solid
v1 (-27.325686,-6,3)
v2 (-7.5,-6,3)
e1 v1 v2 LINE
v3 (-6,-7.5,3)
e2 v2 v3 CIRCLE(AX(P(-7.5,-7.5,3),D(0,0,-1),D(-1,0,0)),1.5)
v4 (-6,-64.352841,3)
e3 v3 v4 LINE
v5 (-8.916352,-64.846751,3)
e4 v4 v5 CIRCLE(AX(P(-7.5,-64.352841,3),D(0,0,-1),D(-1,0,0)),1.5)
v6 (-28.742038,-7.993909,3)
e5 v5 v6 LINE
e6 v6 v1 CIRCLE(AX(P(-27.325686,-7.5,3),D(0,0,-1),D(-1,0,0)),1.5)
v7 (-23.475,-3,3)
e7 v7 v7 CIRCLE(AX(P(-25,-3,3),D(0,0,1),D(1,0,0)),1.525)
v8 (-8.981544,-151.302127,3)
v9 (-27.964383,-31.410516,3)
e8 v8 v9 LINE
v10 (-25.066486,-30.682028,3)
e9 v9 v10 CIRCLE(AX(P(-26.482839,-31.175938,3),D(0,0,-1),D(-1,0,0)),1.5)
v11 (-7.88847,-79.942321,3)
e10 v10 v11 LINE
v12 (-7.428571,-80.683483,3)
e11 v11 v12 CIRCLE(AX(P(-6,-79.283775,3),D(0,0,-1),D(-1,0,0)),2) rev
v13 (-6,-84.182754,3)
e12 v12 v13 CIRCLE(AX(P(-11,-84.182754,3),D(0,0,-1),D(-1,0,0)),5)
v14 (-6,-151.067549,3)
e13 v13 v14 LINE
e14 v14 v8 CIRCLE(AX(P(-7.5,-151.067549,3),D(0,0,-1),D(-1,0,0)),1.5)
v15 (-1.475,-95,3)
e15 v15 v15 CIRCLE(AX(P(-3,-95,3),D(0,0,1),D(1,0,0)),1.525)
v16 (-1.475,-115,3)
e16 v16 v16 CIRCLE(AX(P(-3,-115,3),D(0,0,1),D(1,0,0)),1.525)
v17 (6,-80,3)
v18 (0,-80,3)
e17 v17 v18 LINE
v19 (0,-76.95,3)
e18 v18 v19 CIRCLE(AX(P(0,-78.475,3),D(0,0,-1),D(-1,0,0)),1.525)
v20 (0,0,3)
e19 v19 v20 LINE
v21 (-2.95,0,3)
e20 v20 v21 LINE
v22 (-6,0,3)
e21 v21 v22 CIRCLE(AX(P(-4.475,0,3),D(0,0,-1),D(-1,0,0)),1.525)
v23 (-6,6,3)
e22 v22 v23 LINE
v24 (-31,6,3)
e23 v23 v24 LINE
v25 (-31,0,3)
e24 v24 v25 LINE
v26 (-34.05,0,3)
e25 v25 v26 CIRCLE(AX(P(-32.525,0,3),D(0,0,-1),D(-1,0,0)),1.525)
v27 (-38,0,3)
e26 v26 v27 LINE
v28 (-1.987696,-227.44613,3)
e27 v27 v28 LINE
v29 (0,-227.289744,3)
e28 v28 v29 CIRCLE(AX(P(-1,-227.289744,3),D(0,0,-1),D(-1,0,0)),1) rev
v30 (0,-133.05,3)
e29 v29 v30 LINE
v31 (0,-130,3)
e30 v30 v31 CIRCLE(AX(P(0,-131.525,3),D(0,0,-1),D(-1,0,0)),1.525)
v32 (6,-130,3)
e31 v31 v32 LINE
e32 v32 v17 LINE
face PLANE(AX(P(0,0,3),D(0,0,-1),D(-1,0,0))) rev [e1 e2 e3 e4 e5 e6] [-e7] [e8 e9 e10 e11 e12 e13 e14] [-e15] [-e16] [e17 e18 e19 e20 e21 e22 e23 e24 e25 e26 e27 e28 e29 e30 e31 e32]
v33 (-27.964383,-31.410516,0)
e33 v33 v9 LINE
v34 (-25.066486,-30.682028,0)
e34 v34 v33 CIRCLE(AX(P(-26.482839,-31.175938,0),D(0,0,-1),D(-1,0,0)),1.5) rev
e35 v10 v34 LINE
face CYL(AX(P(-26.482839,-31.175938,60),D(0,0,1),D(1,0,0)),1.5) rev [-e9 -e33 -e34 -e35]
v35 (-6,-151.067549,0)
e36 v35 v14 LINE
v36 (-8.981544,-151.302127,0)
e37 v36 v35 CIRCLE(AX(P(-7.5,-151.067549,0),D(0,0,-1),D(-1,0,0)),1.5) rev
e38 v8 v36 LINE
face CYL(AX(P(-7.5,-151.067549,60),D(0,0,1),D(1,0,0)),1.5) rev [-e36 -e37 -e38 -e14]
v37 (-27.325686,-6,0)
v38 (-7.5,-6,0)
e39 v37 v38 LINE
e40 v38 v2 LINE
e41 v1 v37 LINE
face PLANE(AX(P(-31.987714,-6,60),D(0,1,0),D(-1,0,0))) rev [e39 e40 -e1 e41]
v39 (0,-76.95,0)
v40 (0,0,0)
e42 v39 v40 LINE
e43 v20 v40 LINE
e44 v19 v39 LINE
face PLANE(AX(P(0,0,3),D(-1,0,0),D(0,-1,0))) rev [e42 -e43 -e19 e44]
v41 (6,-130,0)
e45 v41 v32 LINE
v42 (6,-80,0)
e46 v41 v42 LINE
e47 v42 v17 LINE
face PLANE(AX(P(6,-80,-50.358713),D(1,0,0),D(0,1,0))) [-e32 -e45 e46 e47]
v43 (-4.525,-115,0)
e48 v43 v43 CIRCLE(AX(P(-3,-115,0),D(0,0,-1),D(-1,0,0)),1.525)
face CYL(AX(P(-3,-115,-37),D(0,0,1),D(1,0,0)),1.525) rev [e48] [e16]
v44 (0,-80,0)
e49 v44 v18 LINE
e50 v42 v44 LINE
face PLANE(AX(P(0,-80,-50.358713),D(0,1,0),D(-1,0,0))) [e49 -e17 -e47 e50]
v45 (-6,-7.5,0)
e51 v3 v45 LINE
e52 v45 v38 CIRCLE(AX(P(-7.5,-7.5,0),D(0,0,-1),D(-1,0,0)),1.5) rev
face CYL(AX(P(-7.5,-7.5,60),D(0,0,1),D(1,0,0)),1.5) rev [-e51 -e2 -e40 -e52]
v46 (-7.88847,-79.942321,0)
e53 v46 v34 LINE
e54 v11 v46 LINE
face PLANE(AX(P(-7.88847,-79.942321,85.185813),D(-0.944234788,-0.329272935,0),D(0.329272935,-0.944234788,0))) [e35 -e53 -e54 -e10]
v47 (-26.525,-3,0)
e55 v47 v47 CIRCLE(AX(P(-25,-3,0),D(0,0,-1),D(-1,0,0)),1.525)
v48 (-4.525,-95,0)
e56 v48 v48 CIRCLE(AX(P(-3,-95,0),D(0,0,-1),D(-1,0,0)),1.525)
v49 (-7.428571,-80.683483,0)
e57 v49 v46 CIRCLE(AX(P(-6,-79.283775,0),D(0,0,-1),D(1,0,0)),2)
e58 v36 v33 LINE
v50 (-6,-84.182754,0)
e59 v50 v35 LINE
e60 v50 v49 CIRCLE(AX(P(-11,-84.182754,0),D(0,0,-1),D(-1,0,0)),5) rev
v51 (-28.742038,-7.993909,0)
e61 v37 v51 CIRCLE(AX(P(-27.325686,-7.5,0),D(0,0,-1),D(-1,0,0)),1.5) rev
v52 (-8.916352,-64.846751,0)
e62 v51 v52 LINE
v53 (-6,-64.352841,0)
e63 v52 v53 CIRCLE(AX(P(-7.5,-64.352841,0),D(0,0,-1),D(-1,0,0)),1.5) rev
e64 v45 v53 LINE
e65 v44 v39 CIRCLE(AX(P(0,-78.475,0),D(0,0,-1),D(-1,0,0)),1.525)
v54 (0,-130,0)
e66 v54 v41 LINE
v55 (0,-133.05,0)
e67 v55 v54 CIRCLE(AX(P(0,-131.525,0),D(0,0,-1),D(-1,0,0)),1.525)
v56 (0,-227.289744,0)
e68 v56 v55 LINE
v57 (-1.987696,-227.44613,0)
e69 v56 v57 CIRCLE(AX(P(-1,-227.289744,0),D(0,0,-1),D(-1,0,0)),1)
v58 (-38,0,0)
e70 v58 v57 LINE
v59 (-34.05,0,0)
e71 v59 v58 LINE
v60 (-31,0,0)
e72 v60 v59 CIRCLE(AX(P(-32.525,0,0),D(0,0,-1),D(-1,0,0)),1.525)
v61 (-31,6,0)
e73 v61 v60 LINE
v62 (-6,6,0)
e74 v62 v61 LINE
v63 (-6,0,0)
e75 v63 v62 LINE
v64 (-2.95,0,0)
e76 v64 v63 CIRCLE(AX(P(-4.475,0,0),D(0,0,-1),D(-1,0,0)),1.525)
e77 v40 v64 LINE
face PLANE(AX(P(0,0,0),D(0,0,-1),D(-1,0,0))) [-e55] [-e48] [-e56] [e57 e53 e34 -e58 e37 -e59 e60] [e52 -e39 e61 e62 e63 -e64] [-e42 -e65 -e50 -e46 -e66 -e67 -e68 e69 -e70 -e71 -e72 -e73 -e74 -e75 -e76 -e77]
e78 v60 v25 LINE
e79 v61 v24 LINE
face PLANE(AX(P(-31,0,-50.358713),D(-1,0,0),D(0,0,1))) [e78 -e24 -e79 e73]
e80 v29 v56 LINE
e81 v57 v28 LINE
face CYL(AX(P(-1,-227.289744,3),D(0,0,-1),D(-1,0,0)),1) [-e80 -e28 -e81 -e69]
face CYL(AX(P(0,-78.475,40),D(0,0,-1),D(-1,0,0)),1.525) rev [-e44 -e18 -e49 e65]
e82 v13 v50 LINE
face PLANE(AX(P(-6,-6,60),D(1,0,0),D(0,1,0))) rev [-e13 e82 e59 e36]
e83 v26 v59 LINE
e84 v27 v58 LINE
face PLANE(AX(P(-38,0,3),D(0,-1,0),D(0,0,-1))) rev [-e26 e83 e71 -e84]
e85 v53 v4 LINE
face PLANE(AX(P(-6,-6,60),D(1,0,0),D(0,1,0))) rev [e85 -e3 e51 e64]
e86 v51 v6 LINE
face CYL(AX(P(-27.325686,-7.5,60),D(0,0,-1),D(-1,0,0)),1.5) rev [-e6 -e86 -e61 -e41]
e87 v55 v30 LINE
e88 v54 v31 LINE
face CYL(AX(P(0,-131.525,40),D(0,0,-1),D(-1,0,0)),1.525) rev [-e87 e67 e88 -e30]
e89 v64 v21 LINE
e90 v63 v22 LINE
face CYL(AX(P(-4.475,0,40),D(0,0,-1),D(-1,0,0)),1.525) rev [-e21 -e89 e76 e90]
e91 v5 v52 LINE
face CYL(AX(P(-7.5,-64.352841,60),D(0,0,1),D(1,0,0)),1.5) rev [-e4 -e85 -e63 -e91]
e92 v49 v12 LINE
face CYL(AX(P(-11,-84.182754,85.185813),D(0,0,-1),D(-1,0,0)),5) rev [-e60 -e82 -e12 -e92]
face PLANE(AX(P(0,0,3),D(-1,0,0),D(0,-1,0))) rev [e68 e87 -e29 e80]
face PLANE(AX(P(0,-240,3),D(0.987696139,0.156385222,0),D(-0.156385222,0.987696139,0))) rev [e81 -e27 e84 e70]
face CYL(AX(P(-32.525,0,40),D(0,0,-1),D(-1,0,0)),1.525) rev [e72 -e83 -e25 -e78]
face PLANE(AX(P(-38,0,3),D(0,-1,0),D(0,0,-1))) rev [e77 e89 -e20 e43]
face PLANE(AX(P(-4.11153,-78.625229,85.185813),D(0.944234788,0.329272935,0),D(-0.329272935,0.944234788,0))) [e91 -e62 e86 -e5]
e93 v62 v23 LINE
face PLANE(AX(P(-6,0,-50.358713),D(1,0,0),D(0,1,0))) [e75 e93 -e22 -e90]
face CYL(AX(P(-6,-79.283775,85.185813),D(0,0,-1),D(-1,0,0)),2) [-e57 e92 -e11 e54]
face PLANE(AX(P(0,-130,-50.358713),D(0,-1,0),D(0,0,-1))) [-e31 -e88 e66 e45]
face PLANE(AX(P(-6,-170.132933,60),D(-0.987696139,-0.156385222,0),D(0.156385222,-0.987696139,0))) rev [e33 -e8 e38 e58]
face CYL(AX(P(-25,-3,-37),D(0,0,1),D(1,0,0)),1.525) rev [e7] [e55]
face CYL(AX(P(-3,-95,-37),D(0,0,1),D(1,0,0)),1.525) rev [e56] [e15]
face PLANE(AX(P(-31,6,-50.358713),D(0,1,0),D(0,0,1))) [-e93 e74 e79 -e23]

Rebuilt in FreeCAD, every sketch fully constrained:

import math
import FreeCAD as App
import Part
import Sketcher

V = App.Vector
Q = App.Units.Quantity


def edges_at(feature, points):
    """Names of the edges that pass closest to the given points."""
    edges = feature.Shape.Edges
    near = lambda p: min(range(len(edges)), key=lambda i: edges[i].distToShape(Part.Vertex(*p))[0])
    return sorted({f"Edge{near(p) + 1}" for p in points})


def add_polygon(sketch, points):
    """Adds a closed chain of lines whose ends are joined by coincident constraints."""
    first, n = sketch.GeometryCount, len(points)
    for a, b in zip(points, points[1:] + points[:1]):
        sketch.addGeometry(Part.LineSegment(App.Vector(*a, 0), App.Vector(*b, 0)), False)
    for i in range(n):
        sketch.addConstraint(Sketcher.Constraint("Coincident", first + i, 2, first + (i + 1) % n, 1))

doc = App.newDocument("Part")
params = doc.addObject("Spreadsheet::Sheet", "Params")
for row, (alias, value) in enumerate([
    ("sketch1_width", "38 mm"),
    ("sketch1_height", "240 mm"),
    ("pad1_length", "3 mm"),
    ("sketch2_diameter", "3.05 mm"),
    ("pocket1_length", "40 mm"),
    ("sketch3_width", "25 mm"),
    ("sketch3_width2", "6 mm"),
    ("sketch3_height", "50 mm"),
    ("pad2_length", "3 mm"),
    ("sketch4_diameter", "3.05 mm"),
    ("pocket2_length", "40 mm"),
    ("pocket3_length", "60 mm"),
    ("fillet_radius", "1 mm"),
    ("fillet2_radius", "1.5 mm"),
    ("sketch6_radius", "2 mm"),
    ("sketch6_radius2", "2 mm"),
    ("pad3_length", "3 mm"),
    ("fillet3_radius", "5 mm"),
    ("fillet4_radius", "1.5 mm"),
], start=1):
    params.set(f"A{row}", alias)
    params.set(f"B{row}", "=" + value)
    params.setAlias(f"B{row}", alias)

body = doc.addObject("PartDesign::Body", "Body")

# Sketch on XY plane
sketch1 = body.newObject("Sketcher::SketchObject", "Sketch")
sketch1.AttachmentSupport = (doc.getObject("XY_Plane"), [""])
sketch1.MapMode = "FlatFace"
add_polygon(sketch1, [(0, 0), (-38, 0), (0, -240)])  # lines 0-2
sketch1.addConstraint([
    Sketcher.Constraint("Horizontal", 0),
    Sketcher.Constraint("Vertical", 2),
    Sketcher.Constraint("Coincident", 2, 2, -1, 1),
    Sketcher.Constraint("DistanceX", 0, 2, 0, 1, Q("38 mm")),
    Sketcher.Constraint("DistanceY", 2, 1, 2, 2, Q("240 mm")),
])
sketch1.setExpression("Constraints[6]", "Params.sketch1_width")
sketch1.setExpression("Constraints[7]", "Params.sketch1_height")
pad1 = body.newObject("PartDesign::Pad", "Pad")
pad1.Profile = sketch1
pad1.setExpression("Length", "Params.pad1_length")

# Sketch on XY plane
sketch2 = body.newObject("Sketcher::SketchObject", "Sketch001")
sketch2.AttachmentSupport = (doc.getObject("XY_Plane"), [""])
sketch2.MapMode = "FlatFace"
sketch2.AttachmentOffset = App.Placement(V(0, 0, 3), App.Rotation())
sketch2.addGeometry([
    Part.Circle(V(-3, -115, 0), V(0, 0, 1), 1.5),
    Part.Circle(V(-3, -95, 0), V(0, 0, 1), 1.5),
    Part.Circle(V(-25, -3, 0), V(0, 0, 1), 1.5),
], False)
sketch2.addConstraint([
    Sketcher.Constraint("Equal", 0, 1),
    Sketcher.Constraint("Equal", 1, 2),
    Sketcher.Constraint("Vertical", 0, 3, 1, 3),
    Sketcher.Constraint("Diameter", 0, Q("3.05 mm")),
    Sketcher.Constraint("DistanceX", 0, 3, -1, 1, Q("3 mm")),
    Sketcher.Constraint("DistanceY", 0, 3, -1, 1, Q("115 mm")),
    Sketcher.Constraint("DistanceY", 1, 3, -1, 1, Q("95 mm")),
    Sketcher.Constraint("DistanceX", 2, 3, -1, 1, Q("25 mm")),
    Sketcher.Constraint("DistanceY", 2, 3, -1, 1, Q("3 mm")),
])
sketch2.setExpression("Constraints[3]", "Params.sketch2_diameter")
pocket1 = body.newObject("PartDesign::Pocket", "Pocket")
pocket1.Profile = sketch2
pocket1.setExpression("Length", "Params.pocket1_length")

# Sketch on XY plane
sketch3 = body.newObject("Sketcher::SketchObject", "Sketch002")
sketch3.AttachmentSupport = (doc.getObject("XY_Plane"), [""])
sketch3.MapMode = "FlatFace"
sketch3.AttachmentOffset = App.Placement(V(0, 0, 3), App.Rotation())
add_polygon(sketch3, [(-31, 6), (-31, 0), (-6, 0), (-6, 6)])  # lines 0-3
add_polygon(sketch3, [(0, -80), (0, -130), (6, -130), (6, -80)])  # lines 4-7
sketch3.addConstraint([
    Sketcher.Constraint("Vertical", 0),
    Sketcher.Constraint("Horizontal", 1),
    Sketcher.Constraint("Vertical", 2),
    Sketcher.Constraint("Horizontal", 3),
    Sketcher.Constraint("Vertical", 4),
    Sketcher.Constraint("Horizontal", 5),
    Sketcher.Constraint("Vertical", 6),
    Sketcher.Constraint("Horizontal", 7),
    Sketcher.Constraint("PointOnObject", 0, 2, -1),
    Sketcher.Constraint("PointOnObject", 4, 2, -2),
    Sketcher.Constraint("Equal", 7, 0),
    Sketcher.Constraint("DistanceX", 1, 1, 1, 2, Q("25 mm")),
    Sketcher.Constraint("DistanceX", 5, 1, 5, 2, Q("6 mm")),
    Sketcher.Constraint("DistanceY", 4, 2, 4, 1, Q("50 mm")),
    Sketcher.Constraint("DistanceX", 0, 2, -1, 1, Q("31 mm")),
    Sketcher.Constraint("DistanceY", 4, 2, -1, 1, Q("130 mm")),
])
sketch3.setExpression("Constraints[19]", "Params.sketch3_width")
sketch3.setExpression("Constraints[20]", "Params.sketch3_width2")
sketch3.setExpression("Constraints[21]", "Params.sketch3_height")
pad2 = body.newObject("PartDesign::Pad", "Pad001")
pad2.Profile = sketch3
pad2.setExpression("Length", "Params.pad2_length")
pad2.Reversed = True

# Sketch on XY plane
sketch4 = body.newObject("Sketcher::SketchObject", "Sketch003")
sketch4.AttachmentSupport = (doc.getObject("XY_Plane"), [""])
sketch4.MapMode = "FlatFace"
sketch4.addGeometry([
    Part.Circle(V(0, -78.5, 0), V(0, 0, 1), 1.5),
    Part.Circle(V(0, -131.5, 0), V(0, 0, 1), 1.5),
    Part.Circle(V(-4.5, 0, 0), V(0, 0, 1), 1.5),
    Part.Circle(V(-32.5, 0, 0), V(0, 0, 1), 1.5),
], False)
sketch4.addConstraint([
    Sketcher.Constraint("Equal", 0, 1),
    Sketcher.Constraint("Equal", 1, 2),
    Sketcher.Constraint("Equal", 2, 3),
    Sketcher.Constraint("PointOnObject", 0, 3, -2),
    Sketcher.Constraint("PointOnObject", 1, 3, -2),
    Sketcher.Constraint("PointOnObject", 2, 3, -1),
    Sketcher.Constraint("PointOnObject", 3, 3, -1),
    Sketcher.Constraint("Diameter", 0, Q("3.05 mm")),
    Sketcher.Constraint("DistanceY", 1, 3, 0, 3, Q("53.05 mm")),
    Sketcher.Constraint("DistanceX", 3, 3, 2, 3, Q("28.05 mm")),
    Sketcher.Constraint("DistanceY", 0, 3, -1, 1, Q("78.475 mm")),
    Sketcher.Constraint("DistanceX", 2, 3, -1, 1, Q("4.475 mm")),
])
sketch4.setExpression("Constraints[7]", "Params.sketch4_diameter")
pocket2 = body.newObject("PartDesign::Pocket", "Pocket001")
pocket2.Profile = sketch4
pocket2.setExpression("Length", "Params.pocket2_length")
pocket2.Reversed = True

# Sketch on XY plane
sketch5 = body.newObject("Sketcher::SketchObject", "Sketch004")
sketch5.AttachmentSupport = (doc.getObject("XY_Plane"), [""])
sketch5.MapMode = "FlatFace"
add_polygon(sketch5, [(-6, -6), (-6, -170), (-32, -6)])  # lines 0-2
sketch5.addConstraint([
    Sketcher.Constraint("Vertical", 0),
    Sketcher.Constraint("Horizontal", 2),
    Sketcher.Constraint("DistanceX", 0, 2, -1, 1, Q("6 mm")),
    Sketcher.Constraint("DistanceY", 1, 2, -1, 1, Q("6 mm")),
    Sketcher.Constraint("Distance", 1, Q("166.177558 mm")),
    Sketcher.Constraint("DistanceX", 2, 1, 2, 2, Q("25.987714 mm")),
])
pocket3 = body.newObject("PartDesign::Pocket", "Pocket002")
pocket3.Profile = sketch5
pocket3.setExpression("Length", "Params.pocket3_length")
pocket3.Reversed = True
doc.recompute()

fillet = body.newObject("PartDesign::Fillet", "Fillet")
fillet.Base = (pocket3, edges_at(pocket3, [(0, -240, 1.5)]))
fillet.setExpression("Radius", "Params.fillet_radius")
doc.recompute()

fillet2 = body.newObject("PartDesign::Fillet", "Fillet001")
fillet2.Base = (fillet, edges_at(fillet, [(-6, -6, 1.5), (-31.988, -6, 1.5), (-6, -170.133, 1.5)]))
fillet2.setExpression("Radius", "Params.fillet2_radius")

# Sketch on XY plane
sketch6 = body.newObject("Sketcher::SketchObject", "Sketch005")
sketch6.AttachmentSupport = (doc.getObject("XY_Plane"), [""])
sketch6.MapMode = "FlatFace"
sketch6.addGeometry([
    Part.LineSegment(V(-7.88847, -79.942321, 0), V(-33.260583, -7.184345, 0)),
    Part.ArcOfCircle(Part.Circle(V(-31.372113, -6.525799, 0), V(0, 0, 1), 2), math.radians(19.224652), math.radians(199.224652)),
    Part.LineSegment(V(-29.483644, -5.867254, 0), V(-4.11153, -78.625229, 0)),
    Part.ArcOfCircle(Part.Circle(V(-6, -79.283775, 0), V(0, 0, 1), 2), math.radians(-160.775348), math.radians(19.224652)),
], False)
sketch6.addConstraint([
    Sketcher.Constraint("Coincident", 0, 2, 1, 2),
    Sketcher.Constraint("Coincident", 1, 1, 2, 1),
    Sketcher.Constraint("Coincident", 2, 2, 3, 2),
    Sketcher.Constraint("Coincident", 3, 1, 0, 1),
    Sketcher.Constraint("Radius", 1, Q("2 mm")),
    Sketcher.Constraint("Radius", 3, Q("2 mm")),
    Sketcher.Constraint("DistanceX", 3, 3, -1, 1, Q("6 mm")),
    Sketcher.Constraint("DistanceY", 1, 3, -1, 1, Q("6.525799 mm")),
    Sketcher.Constraint("Distance", 0, Q("77.054961 mm")),
    Sketcher.Constraint("Distance", 2, Q("77.054961 mm")),
    Sketcher.Constraint("DistanceX", 2, 2, -1, 1, Q("4.11153 mm")),
    Sketcher.Constraint("DistanceY", 2, 2, -1, 1, Q("78.625229 mm")),
    Sketcher.Constraint("DistanceX", 3, 1, -1, 1, Q("7.88847 mm")),
    Sketcher.Constraint("DistanceX", 0, 2, 1, 3, Q("1.88847 mm")),
])
sketch6.setExpression("Constraints[4]", "Params.sketch6_radius")
sketch6.setExpression("Constraints[5]", "Params.sketch6_radius2")
pad3 = body.newObject("PartDesign::Pad", "Pad002")
pad3.Profile = sketch6
pad3.setExpression("Length", "Params.pad3_length")
doc.recompute()

fillet3 = body.newObject("PartDesign::Fillet", "Fillet002")
fillet3.Base = (pad3, edges_at(pad3, [(-6, -81.284, 1.5)]))
fillet3.setExpression("Radius", "Params.fillet3_radius")
doc.recompute()

fillet4 = body.newObject("PartDesign::Fillet", "Fillet003")
fillet4.Base = (fillet3, edges_at(fillet3, [(-6, -73.21, 1.5), (-30.586, -14.855, 1.5), (-29.437, -6, 1.5)]))
fillet4.setExpression("Radius", "Params.fillet4_radius")

doc.recompute()
